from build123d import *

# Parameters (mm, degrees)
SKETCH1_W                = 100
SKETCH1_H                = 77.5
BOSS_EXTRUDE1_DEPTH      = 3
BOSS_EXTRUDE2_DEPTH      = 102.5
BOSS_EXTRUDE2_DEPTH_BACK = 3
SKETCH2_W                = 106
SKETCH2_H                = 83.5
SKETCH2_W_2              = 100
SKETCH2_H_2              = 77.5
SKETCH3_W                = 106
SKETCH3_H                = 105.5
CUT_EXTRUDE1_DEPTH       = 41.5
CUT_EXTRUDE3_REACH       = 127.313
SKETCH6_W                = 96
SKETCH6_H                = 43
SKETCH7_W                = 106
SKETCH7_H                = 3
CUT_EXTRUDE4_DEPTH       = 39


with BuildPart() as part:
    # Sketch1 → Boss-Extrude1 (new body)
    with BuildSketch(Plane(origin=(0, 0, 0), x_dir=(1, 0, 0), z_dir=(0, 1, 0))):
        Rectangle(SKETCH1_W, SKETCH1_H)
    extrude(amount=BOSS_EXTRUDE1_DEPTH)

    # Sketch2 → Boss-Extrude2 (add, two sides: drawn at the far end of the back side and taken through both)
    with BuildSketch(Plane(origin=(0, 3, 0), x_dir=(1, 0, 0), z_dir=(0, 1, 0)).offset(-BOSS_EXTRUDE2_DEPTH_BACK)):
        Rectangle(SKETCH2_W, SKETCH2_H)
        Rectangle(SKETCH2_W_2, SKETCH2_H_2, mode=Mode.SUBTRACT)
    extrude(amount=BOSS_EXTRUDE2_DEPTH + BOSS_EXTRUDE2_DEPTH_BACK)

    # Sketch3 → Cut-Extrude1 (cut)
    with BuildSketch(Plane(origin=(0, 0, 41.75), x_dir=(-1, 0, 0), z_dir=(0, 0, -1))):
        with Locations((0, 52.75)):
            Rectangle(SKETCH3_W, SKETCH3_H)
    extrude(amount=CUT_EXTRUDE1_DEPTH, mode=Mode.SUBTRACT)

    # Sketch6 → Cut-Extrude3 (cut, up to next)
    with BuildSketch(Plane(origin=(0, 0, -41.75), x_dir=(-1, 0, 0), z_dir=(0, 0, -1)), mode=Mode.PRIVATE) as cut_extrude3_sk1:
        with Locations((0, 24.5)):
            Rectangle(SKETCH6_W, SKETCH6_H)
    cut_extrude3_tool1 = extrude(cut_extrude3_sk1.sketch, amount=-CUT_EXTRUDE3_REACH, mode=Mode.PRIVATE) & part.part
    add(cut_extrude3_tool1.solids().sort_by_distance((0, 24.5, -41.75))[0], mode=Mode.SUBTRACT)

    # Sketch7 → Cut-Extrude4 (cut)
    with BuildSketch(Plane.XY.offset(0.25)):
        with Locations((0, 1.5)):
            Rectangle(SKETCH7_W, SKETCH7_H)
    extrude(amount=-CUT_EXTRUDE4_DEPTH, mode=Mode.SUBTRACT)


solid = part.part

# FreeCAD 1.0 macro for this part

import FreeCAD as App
import Part
import Sketcher

doc = App.newDocument("Part")
body = doc.addObject("PartDesign::Body", "Body")

sketch1 = doc.addObject("Sketcher::SketchObject", "Sketch")
body.addObject(sketch1)
sketch1.AttachmentSupport = (doc.XZ_Plane, [""])
sketch1.MapMode = "FlatFace"
sketch1.addGeometry([
    Part.LineSegment(App.Vector(-50, -39, 0), App.Vector(-50, 39, 0)),
    Part.LineSegment(App.Vector(-50, 39, 0), App.Vector(50, 39, 0)),
    Part.LineSegment(App.Vector(50, 39, 0), App.Vector(50, -39, 0)),
    Part.LineSegment(App.Vector(50, -39, 0), App.Vector(-50, -39, 0)),
], False)
sketch1.addConstraint([
    Sketcher.Constraint("Coincident", 0, 2, 1, 1),
    Sketcher.Constraint("Coincident", 1, 2, 2, 1),
    Sketcher.Constraint("Coincident", 2, 2, 3, 1),
    Sketcher.Constraint("Coincident", 3, 2, 0, 1),
    Sketcher.Constraint("Vertical", 0),
    Sketcher.Constraint("Horizontal", 1),
    Sketcher.Constraint("Vertical", 2),
    Sketcher.Constraint("Horizontal", 3),
    Sketcher.Constraint("Symmetric", 0, 2, 2, 2, -1, 1),
    Sketcher.Constraint("DistanceX", 1, 1, 1, 2, 100.0),
    Sketcher.Constraint("DistanceY", 0, 1, 0, 2, 77.5),
])
pad1 = doc.addObject("PartDesign::Pad", "Pad")
body.addObject(pad1)
pad1.Profile = sketch1
pad1.Length = 3
pad1.Reversed = True

sketch2 = doc.addObject("Sketcher::SketchObject", "Sketch001")
body.addObject(sketch2)
sketch2.AttachmentSupport = (doc.XZ_Plane, [""])
sketch2.MapMode = "FlatFace"
sketch2.AttachmentOffset = App.Placement(App.Vector(0, 0, -3), App.Rotation())
sketch2.addGeometry([
    Part.LineSegment(App.Vector(-53, -42, 0), App.Vector(-53, 42, 0)),
    Part.LineSegment(App.Vector(-53, 42, 0), App.Vector(53, 42, 0)),
    Part.LineSegment(App.Vector(53, 42, 0), App.Vector(53, -42, 0)),
    Part.LineSegment(App.Vector(53, -42, 0), App.Vector(-53, -42, 0)),
    Part.LineSegment(App.Vector(50, 39, 0), App.Vector(-50, 39, 0)),
    Part.LineSegment(App.Vector(-50, 39, 0), App.Vector(-50, -39, 0)),
    Part.LineSegment(App.Vector(-50, -39, 0), App.Vector(50, -39, 0)),
    Part.LineSegment(App.Vector(50, -39, 0), App.Vector(50, 39, 0)),
], False)
sketch2.addConstraint([
    Sketcher.Constraint("Coincident", 0, 2, 1, 1),
    Sketcher.Constraint("Coincident", 1, 2, 2, 1),
    Sketcher.Constraint("Coincident", 2, 2, 3, 1),
    Sketcher.Constraint("Coincident", 3, 2, 0, 1),
    Sketcher.Constraint("Coincident", 4, 2, 5, 1),
    Sketcher.Constraint("Coincident", 5, 2, 6, 1),
    Sketcher.Constraint("Coincident", 6, 2, 7, 1),
    Sketcher.Constraint("Coincident", 7, 2, 4, 1),
    Sketcher.Constraint("Vertical", 0),
    Sketcher.Constraint("Horizontal", 1),
    Sketcher.Constraint("Vertical", 2),
    Sketcher.Constraint("Horizontal", 3),
    Sketcher.Constraint("Horizontal", 4),
    Sketcher.Constraint("Vertical", 5),
    Sketcher.Constraint("Horizontal", 6),
    Sketcher.Constraint("Vertical", 7),
    Sketcher.Constraint("Symmetric", 0, 2, 2, 2, -1, 1),
    Sketcher.Constraint("Symmetric", 4, 2, 6, 2, -1, 1),
    Sketcher.Constraint("DistanceX", 1, 1, 1, 2, 106.0),
    Sketcher.Constraint("DistanceX", 4, 2, 4, 1, 100.0),
    Sketcher.Constraint("DistanceY", 0, 1, 0, 2, 83.5),
    Sketcher.Constraint("DistanceY", 5, 2, 5, 1, 77.5),
])
pad2 = doc.addObject("PartDesign::Pad", "Pad001")
body.addObject(pad2)
pad2.Profile = sketch2
pad2.Type = "TwoLengths"
pad2.Length = 102.5
pad2.Length2 = 3
pad2.Reversed = True

sketch3 = doc.addObject("Sketcher::SketchObject", "Sketch002")
body.addObject(sketch3)
sketch3.AttachmentSupport = (doc.XY_Plane, [""])
sketch3.MapMode = "FlatFace"
sketch3.AttachmentOffset = App.Placement(App.Vector(0, 0, 41.75), App.Rotation())
sketch3.addGeometry([
    Part.LineSegment(App.Vector(53, 106, 0), App.Vector(53, 0, 0)),
    Part.LineSegment(App.Vector(53, 0, 0), App.Vector(-53, 0, 0)),
    Part.LineSegment(App.Vector(-53, 0, 0), App.Vector(-53, 106, 0)),
    Part.LineSegment(App.Vector(-53, 106, 0), App.Vector(53, 106, 0)),
], False)
sketch3.addConstraint([
    Sketcher.Constraint("Coincident", 0, 2, 1, 1),
    Sketcher.Constraint("Coincident", 1, 2, 2, 1),
    Sketcher.Constraint("Coincident", 2, 2, 3, 1),
    Sketcher.Constraint("Coincident", 3, 2, 0, 1),
    Sketcher.Constraint("Vertical", 0),
    Sketcher.Constraint("Horizontal", 1),
    Sketcher.Constraint("Vertical", 2),
    Sketcher.Constraint("Horizontal", 3),
    Sketcher.Constraint("Symmetric", 0, 2, 1, 2, -1, 1),
    Sketcher.Constraint("DistanceX", 1, 2, 1, 1, 106.0),
    Sketcher.Constraint("DistanceY", 0, 2, 0, 1, 105.5),
])
pocket1 = doc.addObject("PartDesign::Pocket", "Pocket")
body.addObject(pocket1)
pocket1.Profile = sketch3
pocket1.Length = 41.5

sketch4 = doc.addObject("Sketcher::SketchObject", "Sketch003")
body.addObject(sketch4)
sketch4.AttachmentSupport = (doc.XY_Plane, [""])
sketch4.MapMode = "FlatFace"
sketch4.AttachmentOffset = App.Placement(App.Vector(0, 0, -41.75), App.Rotation())
sketch4.addGeometry([
    Part.LineSegment(App.Vector(48, 46, 0), App.Vector(48, 3, 0)),
    Part.LineSegment(App.Vector(48, 3, 0), App.Vector(-48, 3, 0)),
    Part.LineSegment(App.Vector(-48, 3, 0), App.Vector(-48, 46, 0)),
    Part.LineSegment(App.Vector(-48, 46, 0), App.Vector(48, 46, 0)),
], False)
sketch4.addConstraint([
    Sketcher.Constraint("Coincident", 0, 2, 1, 1),
    Sketcher.Constraint("Coincident", 1, 2, 2, 1),
    Sketcher.Constraint("Coincident", 2, 2, 3, 1),
    Sketcher.Constraint("Coincident", 3, 2, 0, 1),
    Sketcher.Constraint("Vertical", 0),
    Sketcher.Constraint("Horizontal", 1),
    Sketcher.Constraint("Vertical", 2),
    Sketcher.Constraint("Horizontal", 3),
    Sketcher.Constraint("DistanceX", 1, 2, 1, 1, 96.0),
    Sketcher.Constraint("DistanceY", 0, 2, 0, 1, 43.0),
    Sketcher.Constraint("DistanceX", -1, 1, 0, 2, 48.0),
    Sketcher.Constraint("DistanceY", -1, 1, 0, 2, 3.0),
])
pocket2 = doc.addObject("PartDesign::Pocket", "Pocket001")
body.addObject(pocket2)
pocket2.Profile = sketch4
pocket2.Type = "UpToFirst"
pocket2.Reversed = True

sketch5 = doc.addObject("Sketcher::SketchObject", "Sketch004")
body.addObject(sketch5)
sketch5.AttachmentSupport = (doc.XY_Plane, [""])
sketch5.MapMode = "FlatFace"
sketch5.AttachmentOffset = App.Placement(App.Vector(0, 0, 0.25), App.Rotation())
sketch5.addGeometry([
    Part.LineSegment(App.Vector(-53, 3, 0), App.Vector(-53, 0, 0)),
    Part.LineSegment(App.Vector(-53, 0, 0), App.Vector(53, 0, 0)),
    Part.LineSegment(App.Vector(53, 0, 0), App.Vector(53, 3, 0)),
    Part.LineSegment(App.Vector(53, 3, 0), App.Vector(-53, 3, 0)),
], False)
sketch5.addConstraint([
    Sketcher.Constraint("Coincident", 0, 2, 1, 1),
    Sketcher.Constraint("Coincident", 1, 2, 2, 1),
    Sketcher.Constraint("Coincident", 2, 2, 3, 1),
    Sketcher.Constraint("Coincident", 3, 2, 0, 1),
    Sketcher.Constraint("Vertical", 0),
    Sketcher.Constraint("Horizontal", 1),
    Sketcher.Constraint("Vertical", 2),
    Sketcher.Constraint("Horizontal", 3),
    Sketcher.Constraint("Symmetric", 0, 2, 1, 2, -1, 1),
    Sketcher.Constraint("DistanceX", 1, 1, 1, 2, 106.0),
    Sketcher.Constraint("DistanceY", 0, 2, 0, 1, 3.0),
])
pocket3 = doc.addObject("PartDesign::Pocket", "Pocket002")
body.addObject(pocket3)
pocket3.Profile = sketch5
pocket3.Length = 39

doc.recompute()
